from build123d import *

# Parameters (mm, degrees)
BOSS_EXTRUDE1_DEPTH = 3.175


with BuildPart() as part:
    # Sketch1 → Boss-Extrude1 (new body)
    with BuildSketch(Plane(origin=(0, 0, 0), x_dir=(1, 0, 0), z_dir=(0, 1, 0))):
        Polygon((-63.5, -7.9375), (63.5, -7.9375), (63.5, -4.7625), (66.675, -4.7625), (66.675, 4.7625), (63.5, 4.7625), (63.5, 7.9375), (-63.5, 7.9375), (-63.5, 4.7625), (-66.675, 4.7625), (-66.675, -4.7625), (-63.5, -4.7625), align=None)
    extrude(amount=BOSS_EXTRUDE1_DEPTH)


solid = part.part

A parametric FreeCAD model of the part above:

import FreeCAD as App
import Part
import Sketcher

V = App.Vector
Q = App.Units.Quantity


def add_polygon(sketch, points):
    """Adds a closed chain of lines whose ends are joined by coincident constraints."""
    first, n = sketch.GeometryCount, len(points)
    for a, b in zip(points, points[1:] + points[:1]):
        sketch.addGeometry(Part.LineSegment(App.Vector(*a, 0), App.Vector(*b, 0)), False)
    for i in range(n):
        sketch.addConstraint(Sketcher.Constraint("Coincident", first + i, 2, first + (i + 1) % n, 1))

doc = App.newDocument("Part")
body = doc.addObject("PartDesign::Body", "Body")

sketch1 = body.newObject("Sketcher::SketchObject", "Sketch")
sketch1.AttachmentSupport = (doc.getObject("XZ_Plane"), [""])
sketch1.MapMode = "FlatFace"
add_polygon(sketch1, [(-63.5, 7.9375), (63.5, 7.9375), (63.5, 4.7625), (66.675, 4.7625), (66.675, -4.7625), (63.5, -4.7625), (63.5, -7.9375), (-63.5, -7.9375), (-63.5, -4.7625), (-66.675, -4.7625), (-66.675, 4.7625), (-63.5, 4.7625)])
sketch1.addConstraint([
    Sketcher.Constraint("Horizontal", 0),
    Sketcher.Constraint("Vertical", 1),
    Sketcher.Constraint("Horizontal", 2),
    Sketcher.Constraint("Vertical", 3),
    Sketcher.Constraint("Horizontal", 4),
    Sketcher.Constraint("Vertical", 5),
    Sketcher.Constraint("Horizontal", 6),
    Sketcher.Constraint("Vertical", 7),
    Sketcher.Constraint("Horizontal", 8),
    Sketcher.Constraint("Vertical", 9),
    Sketcher.Constraint("Horizontal", 10),
    Sketcher.Constraint("Vertical", 11),
    Sketcher.Constraint("Symmetric", 0, 2, 6, 2, -1, 1),
    Sketcher.Constraint("Symmetric", 2, 2, 8, 2, -1, 1),
    Sketcher.Constraint("Symmetric", 4, 2, 10, 2, -1, 1),
    Sketcher.Constraint("Symmetric", 4, 2, 7, 2, -2),
    Sketcher.Constraint("Equal", 10, 1),
    Sketcher.Constraint("DistanceX", 0, 1, 0, 2, Q("5 in")),
    Sketcher.Constraint("DistanceY", 3, 2, 0, 2, Q("0.5 in")),
    Sketcher.Constraint("DistanceX", 2, 1, 2, 2, Q("0.125 in")),
])
pad1 = body.newObject("PartDesign::Pad", "Pad")
pad1.Profile = sketch1
pad1.Length = Q("0.125 in")
pad1.Reversed = True

doc.recompute()
